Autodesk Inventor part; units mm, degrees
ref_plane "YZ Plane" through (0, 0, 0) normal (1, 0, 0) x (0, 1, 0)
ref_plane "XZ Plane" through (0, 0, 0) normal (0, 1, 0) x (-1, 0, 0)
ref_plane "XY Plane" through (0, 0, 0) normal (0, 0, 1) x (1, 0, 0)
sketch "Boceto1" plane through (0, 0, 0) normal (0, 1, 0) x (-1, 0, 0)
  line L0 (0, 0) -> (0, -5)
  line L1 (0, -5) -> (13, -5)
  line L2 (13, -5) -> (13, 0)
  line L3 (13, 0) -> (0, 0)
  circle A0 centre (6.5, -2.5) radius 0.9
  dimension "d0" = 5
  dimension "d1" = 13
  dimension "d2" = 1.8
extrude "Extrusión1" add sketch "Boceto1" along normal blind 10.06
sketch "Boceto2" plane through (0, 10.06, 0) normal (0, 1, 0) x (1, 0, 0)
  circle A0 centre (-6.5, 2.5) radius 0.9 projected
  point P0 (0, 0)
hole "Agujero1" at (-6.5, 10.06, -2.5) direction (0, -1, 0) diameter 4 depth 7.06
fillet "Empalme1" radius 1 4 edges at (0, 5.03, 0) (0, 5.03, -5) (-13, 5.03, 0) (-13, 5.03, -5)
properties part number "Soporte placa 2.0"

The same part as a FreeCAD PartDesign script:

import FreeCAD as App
import Part
import Sketcher

V = App.Vector


def edges_at(feature, points):
    """Names of the edges that pass closest to the given points."""
    edges = feature.Shape.Edges
    near = lambda p: min(range(len(edges)), key=lambda i: edges[i].distToShape(Part.Vertex(*p))[0])
    return sorted({f"Edge{near(p) + 1}" for p in points})


def add_polygon(sketch, points):
    """Adds a closed chain of lines whose ends are joined by coincident constraints."""
    first, n = sketch.GeometryCount, len(points)
    for a, b in zip(points, points[1:] + points[:1]):
        sketch.addGeometry(Part.LineSegment(App.Vector(*a, 0), App.Vector(*b, 0)), False)
    for i in range(n):
        sketch.addConstraint(Sketcher.Constraint("Coincident", first + i, 2, first + (i + 1) % n, 1))

doc = App.newDocument("Part")
body = doc.addObject("PartDesign::Body", "Body")

sketch1 = body.newObject("Sketcher::SketchObject", "Sketch")
sketch1.AttachmentSupport = (doc.getObject("XZ_Plane"), [""])
sketch1.MapMode = "FlatFace"
add_polygon(sketch1, [(-13, 0), (0, 0), (0, -5), (-13, -5)])
sketch1.addGeometry(Part.Circle(V(-6.5, -2.5, 0), V(0, 0, 1), 0.9), False)
sketch1.addConstraint([
    Sketcher.Constraint("Horizontal", 0),
    Sketcher.Constraint("Vertical", 1),
    Sketcher.Constraint("Horizontal", 2),
    Sketcher.Constraint("Vertical", 3),
    Sketcher.Constraint("Coincident", 0, 2, -1, 1),
    Sketcher.Constraint("Diameter", 4, 1.8),
    Sketcher.Constraint("DistanceX", 0, 1, 0, 2, 13.0),
    Sketcher.Constraint("DistanceY", 1, 2, 1, 1, 5.0),
    Sketcher.Constraint("DistanceX", 4, 3, -1, 1, 6.5),
    Sketcher.Constraint("DistanceY", 4, 3, -1, 1, 2.5),
])
pad1 = body.newObject("PartDesign::Pad", "Pad")
pad1.Profile = sketch1
pad1.Length = 10.06
pad1.Reversed = True

sketch2 = body.newObject("Sketcher::SketchObject", "Sketch001")
sketch2.AttachmentSupport = (doc.getObject("XZ_Plane"), [""])
sketch2.MapMode = "FlatFace"
sketch2.AttachmentOffset = App.Placement(V(0, 0, -10.06), App.Rotation())
sketch2.addGeometry(Part.Circle(V(-6.5, -2.5, 0), V(0, 0, 1), 2), False)
sketch2.addConstraint([
    Sketcher.Constraint("Diameter", 0, 4.0),
    Sketcher.Constraint("DistanceX", 0, 3, -1, 1, 6.5),
    Sketcher.Constraint("DistanceY", 0, 3, -1, 1, 2.5),
])
doc.recompute()
hole = body.newObject("PartDesign::Hole", "Hole")
hole.Profile = sketch2
hole.ThreadType = "None"
hole.Diameter = 4
hole.DepthType = "Dimension"
hole.Depth = 7.06
hole.DrillPoint = "Flat"
hole.Reversed = True
doc.recompute()

fillet = body.newObject("PartDesign::Fillet", "Fillet")
fillet.Base = (hole, edges_at(hole, [
    (0, 5.03, 0),
    (0, 5.03, -5),
    (-13, 5.03, 0),
    (-13, 5.03, -5),
]))
fillet.Radius = 1

doc.recompute()
